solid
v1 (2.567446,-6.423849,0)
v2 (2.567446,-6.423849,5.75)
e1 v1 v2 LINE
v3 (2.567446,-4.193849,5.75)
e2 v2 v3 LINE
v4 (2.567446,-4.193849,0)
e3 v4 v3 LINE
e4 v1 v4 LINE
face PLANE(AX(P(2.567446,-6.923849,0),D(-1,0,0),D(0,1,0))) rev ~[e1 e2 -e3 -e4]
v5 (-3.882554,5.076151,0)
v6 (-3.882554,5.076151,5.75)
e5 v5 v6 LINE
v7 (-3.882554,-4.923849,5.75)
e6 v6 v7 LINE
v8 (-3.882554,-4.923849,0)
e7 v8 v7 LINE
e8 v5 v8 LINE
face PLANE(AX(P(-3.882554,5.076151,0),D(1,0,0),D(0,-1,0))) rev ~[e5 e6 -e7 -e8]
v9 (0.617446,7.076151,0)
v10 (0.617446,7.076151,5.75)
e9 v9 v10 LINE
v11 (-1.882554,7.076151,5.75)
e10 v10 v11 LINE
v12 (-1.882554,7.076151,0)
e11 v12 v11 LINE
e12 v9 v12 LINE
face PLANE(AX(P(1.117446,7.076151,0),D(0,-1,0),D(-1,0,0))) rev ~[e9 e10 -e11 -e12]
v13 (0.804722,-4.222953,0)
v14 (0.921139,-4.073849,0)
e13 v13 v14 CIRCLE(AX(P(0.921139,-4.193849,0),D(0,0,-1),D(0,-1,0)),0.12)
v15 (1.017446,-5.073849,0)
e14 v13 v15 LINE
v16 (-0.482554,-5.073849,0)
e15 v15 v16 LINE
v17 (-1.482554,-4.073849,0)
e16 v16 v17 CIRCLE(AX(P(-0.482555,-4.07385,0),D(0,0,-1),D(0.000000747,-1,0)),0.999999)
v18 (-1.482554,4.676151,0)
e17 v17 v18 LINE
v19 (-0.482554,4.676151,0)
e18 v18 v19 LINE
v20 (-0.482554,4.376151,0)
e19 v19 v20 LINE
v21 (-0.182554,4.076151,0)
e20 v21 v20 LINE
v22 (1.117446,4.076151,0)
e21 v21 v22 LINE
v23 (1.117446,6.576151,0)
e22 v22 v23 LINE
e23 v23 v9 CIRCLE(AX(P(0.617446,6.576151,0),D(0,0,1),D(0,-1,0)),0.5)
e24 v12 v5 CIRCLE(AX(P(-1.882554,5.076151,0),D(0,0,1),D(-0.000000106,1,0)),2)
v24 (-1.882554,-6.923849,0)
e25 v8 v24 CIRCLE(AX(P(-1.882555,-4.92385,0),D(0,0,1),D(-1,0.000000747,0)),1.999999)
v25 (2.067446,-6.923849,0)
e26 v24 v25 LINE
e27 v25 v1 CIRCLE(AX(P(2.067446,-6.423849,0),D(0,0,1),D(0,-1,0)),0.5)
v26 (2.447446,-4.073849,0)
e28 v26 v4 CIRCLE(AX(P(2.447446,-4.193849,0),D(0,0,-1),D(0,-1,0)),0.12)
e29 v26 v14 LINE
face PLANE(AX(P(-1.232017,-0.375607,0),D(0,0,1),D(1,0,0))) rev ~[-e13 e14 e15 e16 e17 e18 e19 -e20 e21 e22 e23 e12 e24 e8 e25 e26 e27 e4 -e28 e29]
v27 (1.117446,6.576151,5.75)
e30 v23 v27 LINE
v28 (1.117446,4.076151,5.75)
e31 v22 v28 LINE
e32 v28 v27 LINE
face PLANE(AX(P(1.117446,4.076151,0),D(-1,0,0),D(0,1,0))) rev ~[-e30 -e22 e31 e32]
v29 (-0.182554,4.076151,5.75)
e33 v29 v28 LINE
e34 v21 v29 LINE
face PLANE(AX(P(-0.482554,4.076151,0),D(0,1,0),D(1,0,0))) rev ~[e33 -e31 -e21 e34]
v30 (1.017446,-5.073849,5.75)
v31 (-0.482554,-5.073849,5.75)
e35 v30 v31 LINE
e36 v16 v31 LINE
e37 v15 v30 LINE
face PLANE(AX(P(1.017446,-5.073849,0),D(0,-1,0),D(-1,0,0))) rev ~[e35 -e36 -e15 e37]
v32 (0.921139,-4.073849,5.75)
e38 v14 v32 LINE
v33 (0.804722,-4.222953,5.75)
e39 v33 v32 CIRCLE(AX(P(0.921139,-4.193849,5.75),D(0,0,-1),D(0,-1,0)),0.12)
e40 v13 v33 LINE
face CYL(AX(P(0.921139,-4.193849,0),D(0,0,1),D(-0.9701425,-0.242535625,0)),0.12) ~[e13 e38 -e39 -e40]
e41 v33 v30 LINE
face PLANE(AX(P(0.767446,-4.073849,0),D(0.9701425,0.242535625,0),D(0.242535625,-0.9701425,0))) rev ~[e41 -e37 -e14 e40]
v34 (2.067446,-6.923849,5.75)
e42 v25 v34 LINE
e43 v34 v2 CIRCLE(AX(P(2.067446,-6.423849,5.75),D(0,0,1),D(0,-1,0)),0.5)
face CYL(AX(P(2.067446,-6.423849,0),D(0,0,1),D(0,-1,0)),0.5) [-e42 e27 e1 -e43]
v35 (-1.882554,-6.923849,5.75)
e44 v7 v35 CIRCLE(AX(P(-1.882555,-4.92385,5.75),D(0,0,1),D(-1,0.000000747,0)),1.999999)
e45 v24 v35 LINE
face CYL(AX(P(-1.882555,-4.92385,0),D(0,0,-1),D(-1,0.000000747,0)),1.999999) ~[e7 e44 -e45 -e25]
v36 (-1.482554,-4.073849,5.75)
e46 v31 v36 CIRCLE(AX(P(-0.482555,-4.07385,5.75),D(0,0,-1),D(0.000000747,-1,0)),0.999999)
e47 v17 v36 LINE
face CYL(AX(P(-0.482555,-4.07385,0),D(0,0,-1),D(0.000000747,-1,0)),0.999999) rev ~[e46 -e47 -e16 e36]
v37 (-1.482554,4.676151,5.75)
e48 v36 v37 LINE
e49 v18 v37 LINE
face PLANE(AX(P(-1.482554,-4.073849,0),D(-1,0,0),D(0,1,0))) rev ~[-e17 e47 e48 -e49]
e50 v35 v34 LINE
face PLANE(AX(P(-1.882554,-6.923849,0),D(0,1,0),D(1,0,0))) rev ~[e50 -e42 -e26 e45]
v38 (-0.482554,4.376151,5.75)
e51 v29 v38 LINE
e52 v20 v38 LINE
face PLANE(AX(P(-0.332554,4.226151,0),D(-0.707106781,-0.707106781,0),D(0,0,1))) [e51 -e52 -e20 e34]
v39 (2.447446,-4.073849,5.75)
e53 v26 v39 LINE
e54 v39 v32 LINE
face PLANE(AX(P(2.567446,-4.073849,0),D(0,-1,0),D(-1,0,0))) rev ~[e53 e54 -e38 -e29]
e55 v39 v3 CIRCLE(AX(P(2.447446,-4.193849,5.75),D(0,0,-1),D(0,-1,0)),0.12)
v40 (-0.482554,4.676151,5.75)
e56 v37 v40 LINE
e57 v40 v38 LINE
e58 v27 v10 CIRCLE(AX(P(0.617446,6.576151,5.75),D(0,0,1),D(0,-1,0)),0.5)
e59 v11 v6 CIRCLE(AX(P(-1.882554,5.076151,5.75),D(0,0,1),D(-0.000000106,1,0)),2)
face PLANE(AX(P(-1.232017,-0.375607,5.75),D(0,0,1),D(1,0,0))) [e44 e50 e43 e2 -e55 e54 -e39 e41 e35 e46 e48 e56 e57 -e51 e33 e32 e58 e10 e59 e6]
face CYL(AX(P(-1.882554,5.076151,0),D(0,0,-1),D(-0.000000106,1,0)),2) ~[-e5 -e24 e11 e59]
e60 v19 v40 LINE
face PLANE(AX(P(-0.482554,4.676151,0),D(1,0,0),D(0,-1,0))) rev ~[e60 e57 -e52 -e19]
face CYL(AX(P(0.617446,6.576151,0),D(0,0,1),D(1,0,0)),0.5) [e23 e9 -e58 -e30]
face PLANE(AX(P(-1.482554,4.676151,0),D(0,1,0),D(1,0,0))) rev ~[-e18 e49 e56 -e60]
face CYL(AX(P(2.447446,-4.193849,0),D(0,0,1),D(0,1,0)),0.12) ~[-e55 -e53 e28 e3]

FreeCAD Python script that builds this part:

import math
import FreeCAD as App
import Part
import Sketcher
Q = App.Units.Quantity


def edges_at(feature, points):
    """Names of the edges that pass closest to the given points."""
    edges = feature.Shape.Edges
    near = lambda p: min(range(len(edges)), key=lambda i: edges[i].distToShape(Part.Vertex(*p))[0])
    return sorted({f"Edge{near(p) + 1}" for p in points})

doc = App.newDocument("Part")
body = doc.addObject("PartDesign::Body", "Body")

sketch1 = body.newObject("Sketcher::SketchObject", "Sketch")
sketch1.AttachmentSupport = (doc.getObject("XY_Plane"), [""])
sketch1.MapMode = "FlatFace"
sketch1.addGeometry([
    Part.LineSegment(App.Vector(-0.5, 4.7, 0), App.Vector(-0.5, 4.1, 0)),
    Part.LineSegment(App.Vector(-0.5, 4.1, 0), App.Vector(1.1, 4.1, 0)),
    Part.LineSegment(App.Vector(1.1, 4.1, 0), App.Vector(1.1, 7.1, 0)),
    Part.LineSegment(App.Vector(1.1, 7.1, 0), App.Vector(-1.9, 7.1, 0)),
    Part.ArcOfCircle(Part.Circle(App.Vector(-1.9, 5.1, 0), App.Vector(0, 0, 1), 2), math.radians(90), math.radians(180)),
    Part.LineSegment(App.Vector(-3.9, 5.1, 0), App.Vector(-3.9, -4.9, 0)),
    Part.ArcOfCircle(Part.Circle(App.Vector(-1.9, -4.9, 0), App.Vector(0, 0, 1), 2), math.radians(180), math.radians(270)),
    Part.LineSegment(App.Vector(-1.9, -6.9, 0), App.Vector(2.6, -6.9, 0)),
    Part.LineSegment(App.Vector(2.6, -6.9, 0), App.Vector(2.6, -4.1, 0)),
    Part.LineSegment(App.Vector(2.6, -4.1, 0), App.Vector(0.8, -4.1, 0)),
    Part.LineSegment(App.Vector(0.8, -4.1, 0), App.Vector(1, -5.1, 0)),
    Part.LineSegment(App.Vector(1, -5.1, 0), App.Vector(-0.5, -5.1, 0)),
    Part.ArcOfCircle(Part.Circle(App.Vector(-0.5, -4.1, 0), App.Vector(0, 0, 1), 1), math.radians(180), math.radians(270)),
    Part.LineSegment(App.Vector(-1.5, -4.1, 0), App.Vector(-1.5, 4.7, 0)),
    Part.LineSegment(App.Vector(-1.5, 4.7, 0), App.Vector(-0.5, 4.7, 0)),
], False)
sketch1.addConstraint([
    Sketcher.Constraint("Coincident", 0, 2, 1, 1),
    Sketcher.Constraint("Coincident", 1, 2, 2, 1),
    Sketcher.Constraint("Coincident", 2, 2, 3, 1),
    Sketcher.Constraint("Tangent", 3, 2, 4, 1),
    Sketcher.Constraint("Tangent", 4, 2, 5, 1),
    Sketcher.Constraint("Tangent", 5, 2, 6, 1),
    Sketcher.Constraint("Tangent", 6, 2, 7, 1),
    Sketcher.Constraint("Coincident", 7, 2, 8, 1),
    Sketcher.Constraint("Coincident", 8, 2, 9, 1),
    Sketcher.Constraint("Coincident", 9, 2, 10, 1),
    Sketcher.Constraint("Coincident", 10, 2, 11, 1),
    Sketcher.Constraint("Tangent", 11, 2, 12, 2),
    Sketcher.Constraint("Tangent", 12, 1, 13, 1),
    Sketcher.Constraint("Coincident", 13, 2, 14, 1),
    Sketcher.Constraint("Coincident", 14, 2, 0, 1),
    Sketcher.Constraint("Vertical", 0),
    Sketcher.Constraint("Horizontal", 1),
    Sketcher.Constraint("Vertical", 2),
    Sketcher.Constraint("Horizontal", 3),
    Sketcher.Constraint("Vertical", 5),
    Sketcher.Constraint("Horizontal", 7),
    Sketcher.Constraint("Vertical", 8),
    Sketcher.Constraint("Horizontal", 9),
    Sketcher.Constraint("Horizontal", 11),
    Sketcher.Constraint("Vertical", 13),
    Sketcher.Constraint("Horizontal", 14),
    Sketcher.Constraint("Equal", 4, 6),
    Sketcher.Constraint("Horizontal", 12, 3, 8, 2),
    Sketcher.Constraint("Vertical", 12, 3, 0, 2),
    Sketcher.Constraint("Equal", 3, 2),
    Sketcher.Constraint("Radius", 4, Q("2 mm")),
    Sketcher.Constraint("Radius", 12, Q("0.999999 mm")),
    Sketcher.Constraint("DistanceX", 3, 2, 3, 1, Q("3 mm")),
    Sketcher.Constraint("DistanceY", 5, 2, 5, 1, Q("10 mm")),
    Sketcher.Constraint("DistanceX", 1, 1, 1, 2, Q("1.6 mm")),
    Sketcher.Constraint("DistanceX", 9, 2, 9, 1, Q("1.8 mm")),
    Sketcher.Constraint("DistanceX", 11, 2, 11, 1, Q("1.5 mm")),
    Sketcher.Constraint("DistanceY", 0, 2, 0, 1, Q("0.6 mm")),
    Sketcher.Constraint("DistanceX", 7, 1, 7, 2, Q("4.45 mm")),
    Sketcher.Constraint("DistanceY", 8, 1, 8, 2, Q("2.85 mm")),
    Sketcher.Constraint("DistanceY", -1, 1, 4, 3, Q("5.076151 mm")),
    Sketcher.Constraint("DistanceX", 4, 3, -1, 1, Q("1.882554 mm")),
])
pad1 = body.newObject("PartDesign::Pad", "Pad")
pad1.Profile = sketch1
pad1.Length = 5.75
doc.recompute()

fillet = body.newObject("PartDesign::Fillet", "Fillet")
fillet.Base = (pad1, edges_at(pad1, [(2.567, -6.924, 2.875), (1.117, 7.076, 2.875)]))
fillet.Radius = 0.5
doc.recompute()

chamfer = body.newObject("PartDesign::Chamfer", "Chamfer")
chamfer.Base = (fillet, edges_at(fillet, [(-0.483, 4.076, 2.875)]))
chamfer.Size = 0.3
doc.recompute()

fillet2 = body.newObject("PartDesign::Fillet", "Fillet001")
fillet2.Base = (chamfer, edges_at(chamfer, [(0.767, -4.074, 2.875), (2.567, -4.074, 2.875)]))
fillet2.Radius = 0.12

doc.recompute()
